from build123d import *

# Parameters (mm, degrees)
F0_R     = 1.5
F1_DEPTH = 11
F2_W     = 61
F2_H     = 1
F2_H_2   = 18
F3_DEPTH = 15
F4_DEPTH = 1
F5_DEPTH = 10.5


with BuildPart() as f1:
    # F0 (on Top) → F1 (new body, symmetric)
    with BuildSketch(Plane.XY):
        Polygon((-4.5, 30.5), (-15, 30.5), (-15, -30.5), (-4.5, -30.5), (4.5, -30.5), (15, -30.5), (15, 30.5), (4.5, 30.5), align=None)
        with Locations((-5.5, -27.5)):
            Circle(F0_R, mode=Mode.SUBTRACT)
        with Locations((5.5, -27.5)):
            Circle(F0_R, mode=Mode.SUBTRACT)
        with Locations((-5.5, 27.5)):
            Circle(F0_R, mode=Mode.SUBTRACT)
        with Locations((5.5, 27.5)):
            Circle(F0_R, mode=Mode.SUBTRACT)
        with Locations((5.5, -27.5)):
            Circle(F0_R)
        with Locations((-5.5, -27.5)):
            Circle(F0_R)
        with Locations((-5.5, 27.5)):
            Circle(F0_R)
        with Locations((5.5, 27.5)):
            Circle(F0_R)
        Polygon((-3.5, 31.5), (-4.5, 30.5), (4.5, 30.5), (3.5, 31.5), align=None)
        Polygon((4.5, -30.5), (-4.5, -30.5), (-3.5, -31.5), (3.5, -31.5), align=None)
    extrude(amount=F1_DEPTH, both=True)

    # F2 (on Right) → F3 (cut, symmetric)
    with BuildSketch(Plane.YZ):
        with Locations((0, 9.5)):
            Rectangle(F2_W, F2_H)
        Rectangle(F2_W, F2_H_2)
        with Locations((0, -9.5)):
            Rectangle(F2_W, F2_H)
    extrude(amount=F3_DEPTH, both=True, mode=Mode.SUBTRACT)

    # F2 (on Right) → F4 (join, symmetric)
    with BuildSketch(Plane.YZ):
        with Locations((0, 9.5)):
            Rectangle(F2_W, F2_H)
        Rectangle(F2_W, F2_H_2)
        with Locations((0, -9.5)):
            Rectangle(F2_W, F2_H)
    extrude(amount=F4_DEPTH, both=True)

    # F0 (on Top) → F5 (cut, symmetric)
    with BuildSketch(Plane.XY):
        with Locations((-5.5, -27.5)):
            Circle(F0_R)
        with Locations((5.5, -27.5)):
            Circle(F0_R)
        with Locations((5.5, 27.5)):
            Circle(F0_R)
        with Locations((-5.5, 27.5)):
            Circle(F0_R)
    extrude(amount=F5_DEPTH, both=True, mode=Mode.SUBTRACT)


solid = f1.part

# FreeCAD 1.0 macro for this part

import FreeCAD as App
import Part
import Sketcher
Q = App.Units.Quantity

doc = App.newDocument("Part")
body = doc.addObject("PartDesign::Body", "Body")

sketch1 = body.newObject("Sketcher::SketchObject", "Sketch")
sketch1.AttachmentSupport = (doc.getObject("XY_Plane"), [""])
sketch1.MapMode = "FlatFace"
sketch1.addGeometry(Part.LineSegment(App.Vector(-15, 30.5, 0), App.Vector(-15, -30.5, 0)), False)
sketch1.addGeometry(Part.LineSegment(App.Vector(-15, -30.5, 0), App.Vector(-4.5, -30.5, 0)), False)
sketch1.addGeometry(Part.LineSegment(App.Vector(-4.5, -30.5, 0), App.Vector(-3.5, -31.5, 0)), False)
sketch1.addGeometry(Part.LineSegment(App.Vector(-3.5, -31.5, 0), App.Vector(3.5, -31.5, 0)), False)
sketch1.addGeometry(Part.LineSegment(App.Vector(3.5, -31.5, 0), App.Vector(4.5, -30.5, 0)), False)
sketch1.addGeometry(Part.LineSegment(App.Vector(4.5, -30.5, 0), App.Vector(15, -30.5, 0)), False)
sketch1.addGeometry(Part.LineSegment(App.Vector(15, -30.5, 0), App.Vector(15, 30.5, 0)), False)
sketch1.addGeometry(Part.LineSegment(App.Vector(15, 30.5, 0), App.Vector(4.5, 30.5, 0)), False)
sketch1.addGeometry(Part.LineSegment(App.Vector(4.5, 30.5, 0), App.Vector(3.5, 31.5, 0)), False)
sketch1.addGeometry(Part.LineSegment(App.Vector(3.5, 31.5, 0), App.Vector(-3.5, 31.5, 0)), False)
sketch1.addGeometry(Part.LineSegment(App.Vector(-3.5, 31.5, 0), App.Vector(-4.5, 30.5, 0)), False)
sketch1.addGeometry(Part.LineSegment(App.Vector(-4.5, 30.5, 0), App.Vector(-15, 30.5, 0)), False)
sketch1.addConstraint(Sketcher.Constraint("Coincident", 0, 2, 1, 1))
sketch1.addConstraint(Sketcher.Constraint("Coincident", 1, 2, 2, 1))
sketch1.addConstraint(Sketcher.Constraint("Coincident", 2, 2, 3, 1))
sketch1.addConstraint(Sketcher.Constraint("Coincident", 3, 2, 4, 1))
sketch1.addConstraint(Sketcher.Constraint("Coincident", 4, 2, 5, 1))
sketch1.addConstraint(Sketcher.Constraint("Coincident", 5, 2, 6, 1))
sketch1.addConstraint(Sketcher.Constraint("Coincident", 6, 2, 7, 1))
sketch1.addConstraint(Sketcher.Constraint("Coincident", 7, 2, 8, 1))
sketch1.addConstraint(Sketcher.Constraint("Coincident", 8, 2, 9, 1))
sketch1.addConstraint(Sketcher.Constraint("Coincident", 9, 2, 10, 1))
sketch1.addConstraint(Sketcher.Constraint("Coincident", 10, 2, 11, 1))
sketch1.addConstraint(Sketcher.Constraint("Coincident", 11, 2, 0, 1))
sketch1.addConstraint(Sketcher.Constraint("Vertical", 0))
sketch1.addConstraint(Sketcher.Constraint("Horizontal", 1))
sketch1.addConstraint(Sketcher.Constraint("Horizontal", 3))
sketch1.addConstraint(Sketcher.Constraint("Horizontal", 5))
sketch1.addConstraint(Sketcher.Constraint("Vertical", 6))
sketch1.addConstraint(Sketcher.Constraint("Horizontal", 7))
sketch1.addConstraint(Sketcher.Constraint("Horizontal", 9))
sketch1.addConstraint(Sketcher.Constraint("Horizontal", 11))
sketch1.addConstraint(Sketcher.Constraint("Symmetric", 0, 2, 6, 2, -1, 1))
sketch1.addConstraint(Sketcher.Constraint("Symmetric", 2, 2, 8, 2, -1, 1))
sketch1.addConstraint(Sketcher.Constraint("Symmetric", 4, 2, 10, 2, -1, 1))
sketch1.addConstraint(Sketcher.Constraint("Symmetric", 1, 2, 4, 2, -2))
sketch1.addConstraint(Sketcher.Constraint("Perpendicular", 2, 4))
sketch1.addConstraint(Sketcher.Constraint("Perpendicular", 4, 8))
sketch1.addConstraint(Sketcher.Constraint("Perpendicular", 8, 10))
sketch1.addConstraint(Sketcher.Constraint("Vertical", 3, 2, 8, 2))
sketch1.addConstraint(Sketcher.Constraint("DistanceX", 3, 1, 3, 2, Q("7 mm")))
sketch1.addConstraint(Sketcher.Constraint("DistanceY", 0, 2, 0, 1, Q("61 mm")))
sketch1.addConstraint(Sketcher.Constraint("DistanceX", 1, 1, 1, 2, Q("10.5 mm")))
sketch1.addConstraint(Sketcher.Constraint("DistanceX", 0, 2, -1, 1, Q("15 mm")))
pad1 = body.newObject("PartDesign::Pad", "Pad")
pad1.Profile = sketch1
pad1.Length = 22
pad1.Midplane = True

sketch2 = body.newObject("Sketcher::SketchObject", "Sketch001")
sketch2.AttachmentSupport = (doc.getObject("YZ_Plane"), [""])
sketch2.MapMode = "FlatFace"
sketch2.addGeometry(Part.LineSegment(App.Vector(-30, 10, 0), App.Vector(-30, -10, 0)), False)
sketch2.addGeometry(Part.LineSegment(App.Vector(-30, -10, 0), App.Vector(30, -10, 0)), False)
sketch2.addGeometry(Part.LineSegment(App.Vector(30, -10, 0), App.Vector(30, 10, 0)), False)
sketch2.addGeometry(Part.LineSegment(App.Vector(30, 10, 0), App.Vector(-30, 10, 0)), False)
sketch2.addConstraint(Sketcher.Constraint("Coincident", 0, 2, 1, 1))
sketch2.addConstraint(Sketcher.Constraint("Coincident", 1, 2, 2, 1))
sketch2.addConstraint(Sketcher.Constraint("Coincident", 2, 2, 3, 1))
sketch2.addConstraint(Sketcher.Constraint("Coincident", 3, 2, 0, 1))
sketch2.addConstraint(Sketcher.Constraint("Vertical", 0))
sketch2.addConstraint(Sketcher.Constraint("Horizontal", 1))
sketch2.addConstraint(Sketcher.Constraint("Vertical", 2))
sketch2.addConstraint(Sketcher.Constraint("Horizontal", 3))
sketch2.addConstraint(Sketcher.Constraint("Symmetric", 0, 2, 2, 2, -1, 1))
sketch2.addConstraint(Sketcher.Constraint("DistanceX", 1, 1, 1, 2, Q("61 mm")))
sketch2.addConstraint(Sketcher.Constraint("DistanceY", 0, 2, 0, 1, Q("20 mm")))
pocket1 = body.newObject("PartDesign::Pocket", "Pocket")
pocket1.Profile = sketch2
pocket1.Length = 30
pocket1.Midplane = True

sketch3 = body.newObject("Sketcher::SketchObject", "Sketch002")
sketch3.AttachmentSupport = (doc.getObject("YZ_Plane"), [""])
sketch3.MapMode = "FlatFace"
sketch3.addGeometry(Part.LineSegment(App.Vector(-30, 10, 0), App.Vector(-30, -10, 0)), False)
sketch3.addGeometry(Part.LineSegment(App.Vector(-30, -10, 0), App.Vector(30, -10, 0)), False)
sketch3.addGeometry(Part.LineSegment(App.Vector(30, -10, 0), App.Vector(30, 10, 0)), False)
sketch3.addGeometry(Part.LineSegment(App.Vector(30, 10, 0), App.Vector(-30, 10, 0)), False)
sketch3.addConstraint(Sketcher.Constraint("Coincident", 0, 2, 1, 1))
sketch3.addConstraint(Sketcher.Constraint("Coincident", 1, 2, 2, 1))
sketch3.addConstraint(Sketcher.Constraint("Coincident", 2, 2, 3, 1))
sketch3.addConstraint(Sketcher.Constraint("Coincident", 3, 2, 0, 1))
sketch3.addConstraint(Sketcher.Constraint("Vertical", 0))
sketch3.addConstraint(Sketcher.Constraint("Horizontal", 1))
sketch3.addConstraint(Sketcher.Constraint("Vertical", 2))
sketch3.addConstraint(Sketcher.Constraint("Horizontal", 3))
sketch3.addConstraint(Sketcher.Constraint("Symmetric", 0, 2, 2, 2, -1, 1))
sketch3.addConstraint(Sketcher.Constraint("DistanceX", 1, 1, 1, 2, Q("61 mm")))
sketch3.addConstraint(Sketcher.Constraint("DistanceY", 0, 2, 0, 1, Q("20 mm")))
pad2 = body.newObject("PartDesign::Pad", "Pad001")
pad2.Profile = sketch3
pad2.Length = 2
pad2.Midplane = True

sketch4 = body.newObject("Sketcher::SketchObject", "Sketch003")
sketch4.AttachmentSupport = (doc.getObject("XY_Plane"), [""])
sketch4.MapMode = "FlatFace"
sketch4.addGeometry(Part.Circle(App.Vector(-5.5, -27.5, 0), App.Vector(0, 0, 1), 1.5), False)
sketch4.addGeometry(Part.Circle(App.Vector(5.5, -27.5, 0), App.Vector(0, 0, 1), 1.5), False)
sketch4.addGeometry(Part.Circle(App.Vector(5.5, 27.5, 0), App.Vector(0, 0, 1), 1.5), False)
sketch4.addGeometry(Part.Circle(App.Vector(-5.5, 27.5, 0), App.Vector(0, 0, 1), 1.5), False)
sketch4.addConstraint(Sketcher.Constraint("Equal", 0, 1))
sketch4.addConstraint(Sketcher.Constraint("Equal", 1, 2))
sketch4.addConstraint(Sketcher.Constraint("Equal", 2, 3))
sketch4.addConstraint(Sketcher.Constraint("Symmetric", 0, 3, 2, 3, -1, 1))
sketch4.addConstraint(Sketcher.Constraint("Symmetric", 1, 3, 3, 3, -1, 1))
sketch4.addConstraint(Sketcher.Constraint("Symmetric", 0, 3, 1, 3, -2))
sketch4.addConstraint(Sketcher.Constraint("Diameter", 0, Q("3 mm")))
sketch4.addConstraint(Sketcher.Constraint("DistanceX", 0, 3, 1, 3, Q("11 mm")))
sketch4.addConstraint(Sketcher.Constraint("DistanceY", 1, 3, 2, 3, Q("55 mm")))
pocket2 = body.newObject("PartDesign::Pocket", "Pocket001")
pocket2.Profile = sketch4
pocket2.Length = 21
pocket2.Midplane = True

doc.recompute()
